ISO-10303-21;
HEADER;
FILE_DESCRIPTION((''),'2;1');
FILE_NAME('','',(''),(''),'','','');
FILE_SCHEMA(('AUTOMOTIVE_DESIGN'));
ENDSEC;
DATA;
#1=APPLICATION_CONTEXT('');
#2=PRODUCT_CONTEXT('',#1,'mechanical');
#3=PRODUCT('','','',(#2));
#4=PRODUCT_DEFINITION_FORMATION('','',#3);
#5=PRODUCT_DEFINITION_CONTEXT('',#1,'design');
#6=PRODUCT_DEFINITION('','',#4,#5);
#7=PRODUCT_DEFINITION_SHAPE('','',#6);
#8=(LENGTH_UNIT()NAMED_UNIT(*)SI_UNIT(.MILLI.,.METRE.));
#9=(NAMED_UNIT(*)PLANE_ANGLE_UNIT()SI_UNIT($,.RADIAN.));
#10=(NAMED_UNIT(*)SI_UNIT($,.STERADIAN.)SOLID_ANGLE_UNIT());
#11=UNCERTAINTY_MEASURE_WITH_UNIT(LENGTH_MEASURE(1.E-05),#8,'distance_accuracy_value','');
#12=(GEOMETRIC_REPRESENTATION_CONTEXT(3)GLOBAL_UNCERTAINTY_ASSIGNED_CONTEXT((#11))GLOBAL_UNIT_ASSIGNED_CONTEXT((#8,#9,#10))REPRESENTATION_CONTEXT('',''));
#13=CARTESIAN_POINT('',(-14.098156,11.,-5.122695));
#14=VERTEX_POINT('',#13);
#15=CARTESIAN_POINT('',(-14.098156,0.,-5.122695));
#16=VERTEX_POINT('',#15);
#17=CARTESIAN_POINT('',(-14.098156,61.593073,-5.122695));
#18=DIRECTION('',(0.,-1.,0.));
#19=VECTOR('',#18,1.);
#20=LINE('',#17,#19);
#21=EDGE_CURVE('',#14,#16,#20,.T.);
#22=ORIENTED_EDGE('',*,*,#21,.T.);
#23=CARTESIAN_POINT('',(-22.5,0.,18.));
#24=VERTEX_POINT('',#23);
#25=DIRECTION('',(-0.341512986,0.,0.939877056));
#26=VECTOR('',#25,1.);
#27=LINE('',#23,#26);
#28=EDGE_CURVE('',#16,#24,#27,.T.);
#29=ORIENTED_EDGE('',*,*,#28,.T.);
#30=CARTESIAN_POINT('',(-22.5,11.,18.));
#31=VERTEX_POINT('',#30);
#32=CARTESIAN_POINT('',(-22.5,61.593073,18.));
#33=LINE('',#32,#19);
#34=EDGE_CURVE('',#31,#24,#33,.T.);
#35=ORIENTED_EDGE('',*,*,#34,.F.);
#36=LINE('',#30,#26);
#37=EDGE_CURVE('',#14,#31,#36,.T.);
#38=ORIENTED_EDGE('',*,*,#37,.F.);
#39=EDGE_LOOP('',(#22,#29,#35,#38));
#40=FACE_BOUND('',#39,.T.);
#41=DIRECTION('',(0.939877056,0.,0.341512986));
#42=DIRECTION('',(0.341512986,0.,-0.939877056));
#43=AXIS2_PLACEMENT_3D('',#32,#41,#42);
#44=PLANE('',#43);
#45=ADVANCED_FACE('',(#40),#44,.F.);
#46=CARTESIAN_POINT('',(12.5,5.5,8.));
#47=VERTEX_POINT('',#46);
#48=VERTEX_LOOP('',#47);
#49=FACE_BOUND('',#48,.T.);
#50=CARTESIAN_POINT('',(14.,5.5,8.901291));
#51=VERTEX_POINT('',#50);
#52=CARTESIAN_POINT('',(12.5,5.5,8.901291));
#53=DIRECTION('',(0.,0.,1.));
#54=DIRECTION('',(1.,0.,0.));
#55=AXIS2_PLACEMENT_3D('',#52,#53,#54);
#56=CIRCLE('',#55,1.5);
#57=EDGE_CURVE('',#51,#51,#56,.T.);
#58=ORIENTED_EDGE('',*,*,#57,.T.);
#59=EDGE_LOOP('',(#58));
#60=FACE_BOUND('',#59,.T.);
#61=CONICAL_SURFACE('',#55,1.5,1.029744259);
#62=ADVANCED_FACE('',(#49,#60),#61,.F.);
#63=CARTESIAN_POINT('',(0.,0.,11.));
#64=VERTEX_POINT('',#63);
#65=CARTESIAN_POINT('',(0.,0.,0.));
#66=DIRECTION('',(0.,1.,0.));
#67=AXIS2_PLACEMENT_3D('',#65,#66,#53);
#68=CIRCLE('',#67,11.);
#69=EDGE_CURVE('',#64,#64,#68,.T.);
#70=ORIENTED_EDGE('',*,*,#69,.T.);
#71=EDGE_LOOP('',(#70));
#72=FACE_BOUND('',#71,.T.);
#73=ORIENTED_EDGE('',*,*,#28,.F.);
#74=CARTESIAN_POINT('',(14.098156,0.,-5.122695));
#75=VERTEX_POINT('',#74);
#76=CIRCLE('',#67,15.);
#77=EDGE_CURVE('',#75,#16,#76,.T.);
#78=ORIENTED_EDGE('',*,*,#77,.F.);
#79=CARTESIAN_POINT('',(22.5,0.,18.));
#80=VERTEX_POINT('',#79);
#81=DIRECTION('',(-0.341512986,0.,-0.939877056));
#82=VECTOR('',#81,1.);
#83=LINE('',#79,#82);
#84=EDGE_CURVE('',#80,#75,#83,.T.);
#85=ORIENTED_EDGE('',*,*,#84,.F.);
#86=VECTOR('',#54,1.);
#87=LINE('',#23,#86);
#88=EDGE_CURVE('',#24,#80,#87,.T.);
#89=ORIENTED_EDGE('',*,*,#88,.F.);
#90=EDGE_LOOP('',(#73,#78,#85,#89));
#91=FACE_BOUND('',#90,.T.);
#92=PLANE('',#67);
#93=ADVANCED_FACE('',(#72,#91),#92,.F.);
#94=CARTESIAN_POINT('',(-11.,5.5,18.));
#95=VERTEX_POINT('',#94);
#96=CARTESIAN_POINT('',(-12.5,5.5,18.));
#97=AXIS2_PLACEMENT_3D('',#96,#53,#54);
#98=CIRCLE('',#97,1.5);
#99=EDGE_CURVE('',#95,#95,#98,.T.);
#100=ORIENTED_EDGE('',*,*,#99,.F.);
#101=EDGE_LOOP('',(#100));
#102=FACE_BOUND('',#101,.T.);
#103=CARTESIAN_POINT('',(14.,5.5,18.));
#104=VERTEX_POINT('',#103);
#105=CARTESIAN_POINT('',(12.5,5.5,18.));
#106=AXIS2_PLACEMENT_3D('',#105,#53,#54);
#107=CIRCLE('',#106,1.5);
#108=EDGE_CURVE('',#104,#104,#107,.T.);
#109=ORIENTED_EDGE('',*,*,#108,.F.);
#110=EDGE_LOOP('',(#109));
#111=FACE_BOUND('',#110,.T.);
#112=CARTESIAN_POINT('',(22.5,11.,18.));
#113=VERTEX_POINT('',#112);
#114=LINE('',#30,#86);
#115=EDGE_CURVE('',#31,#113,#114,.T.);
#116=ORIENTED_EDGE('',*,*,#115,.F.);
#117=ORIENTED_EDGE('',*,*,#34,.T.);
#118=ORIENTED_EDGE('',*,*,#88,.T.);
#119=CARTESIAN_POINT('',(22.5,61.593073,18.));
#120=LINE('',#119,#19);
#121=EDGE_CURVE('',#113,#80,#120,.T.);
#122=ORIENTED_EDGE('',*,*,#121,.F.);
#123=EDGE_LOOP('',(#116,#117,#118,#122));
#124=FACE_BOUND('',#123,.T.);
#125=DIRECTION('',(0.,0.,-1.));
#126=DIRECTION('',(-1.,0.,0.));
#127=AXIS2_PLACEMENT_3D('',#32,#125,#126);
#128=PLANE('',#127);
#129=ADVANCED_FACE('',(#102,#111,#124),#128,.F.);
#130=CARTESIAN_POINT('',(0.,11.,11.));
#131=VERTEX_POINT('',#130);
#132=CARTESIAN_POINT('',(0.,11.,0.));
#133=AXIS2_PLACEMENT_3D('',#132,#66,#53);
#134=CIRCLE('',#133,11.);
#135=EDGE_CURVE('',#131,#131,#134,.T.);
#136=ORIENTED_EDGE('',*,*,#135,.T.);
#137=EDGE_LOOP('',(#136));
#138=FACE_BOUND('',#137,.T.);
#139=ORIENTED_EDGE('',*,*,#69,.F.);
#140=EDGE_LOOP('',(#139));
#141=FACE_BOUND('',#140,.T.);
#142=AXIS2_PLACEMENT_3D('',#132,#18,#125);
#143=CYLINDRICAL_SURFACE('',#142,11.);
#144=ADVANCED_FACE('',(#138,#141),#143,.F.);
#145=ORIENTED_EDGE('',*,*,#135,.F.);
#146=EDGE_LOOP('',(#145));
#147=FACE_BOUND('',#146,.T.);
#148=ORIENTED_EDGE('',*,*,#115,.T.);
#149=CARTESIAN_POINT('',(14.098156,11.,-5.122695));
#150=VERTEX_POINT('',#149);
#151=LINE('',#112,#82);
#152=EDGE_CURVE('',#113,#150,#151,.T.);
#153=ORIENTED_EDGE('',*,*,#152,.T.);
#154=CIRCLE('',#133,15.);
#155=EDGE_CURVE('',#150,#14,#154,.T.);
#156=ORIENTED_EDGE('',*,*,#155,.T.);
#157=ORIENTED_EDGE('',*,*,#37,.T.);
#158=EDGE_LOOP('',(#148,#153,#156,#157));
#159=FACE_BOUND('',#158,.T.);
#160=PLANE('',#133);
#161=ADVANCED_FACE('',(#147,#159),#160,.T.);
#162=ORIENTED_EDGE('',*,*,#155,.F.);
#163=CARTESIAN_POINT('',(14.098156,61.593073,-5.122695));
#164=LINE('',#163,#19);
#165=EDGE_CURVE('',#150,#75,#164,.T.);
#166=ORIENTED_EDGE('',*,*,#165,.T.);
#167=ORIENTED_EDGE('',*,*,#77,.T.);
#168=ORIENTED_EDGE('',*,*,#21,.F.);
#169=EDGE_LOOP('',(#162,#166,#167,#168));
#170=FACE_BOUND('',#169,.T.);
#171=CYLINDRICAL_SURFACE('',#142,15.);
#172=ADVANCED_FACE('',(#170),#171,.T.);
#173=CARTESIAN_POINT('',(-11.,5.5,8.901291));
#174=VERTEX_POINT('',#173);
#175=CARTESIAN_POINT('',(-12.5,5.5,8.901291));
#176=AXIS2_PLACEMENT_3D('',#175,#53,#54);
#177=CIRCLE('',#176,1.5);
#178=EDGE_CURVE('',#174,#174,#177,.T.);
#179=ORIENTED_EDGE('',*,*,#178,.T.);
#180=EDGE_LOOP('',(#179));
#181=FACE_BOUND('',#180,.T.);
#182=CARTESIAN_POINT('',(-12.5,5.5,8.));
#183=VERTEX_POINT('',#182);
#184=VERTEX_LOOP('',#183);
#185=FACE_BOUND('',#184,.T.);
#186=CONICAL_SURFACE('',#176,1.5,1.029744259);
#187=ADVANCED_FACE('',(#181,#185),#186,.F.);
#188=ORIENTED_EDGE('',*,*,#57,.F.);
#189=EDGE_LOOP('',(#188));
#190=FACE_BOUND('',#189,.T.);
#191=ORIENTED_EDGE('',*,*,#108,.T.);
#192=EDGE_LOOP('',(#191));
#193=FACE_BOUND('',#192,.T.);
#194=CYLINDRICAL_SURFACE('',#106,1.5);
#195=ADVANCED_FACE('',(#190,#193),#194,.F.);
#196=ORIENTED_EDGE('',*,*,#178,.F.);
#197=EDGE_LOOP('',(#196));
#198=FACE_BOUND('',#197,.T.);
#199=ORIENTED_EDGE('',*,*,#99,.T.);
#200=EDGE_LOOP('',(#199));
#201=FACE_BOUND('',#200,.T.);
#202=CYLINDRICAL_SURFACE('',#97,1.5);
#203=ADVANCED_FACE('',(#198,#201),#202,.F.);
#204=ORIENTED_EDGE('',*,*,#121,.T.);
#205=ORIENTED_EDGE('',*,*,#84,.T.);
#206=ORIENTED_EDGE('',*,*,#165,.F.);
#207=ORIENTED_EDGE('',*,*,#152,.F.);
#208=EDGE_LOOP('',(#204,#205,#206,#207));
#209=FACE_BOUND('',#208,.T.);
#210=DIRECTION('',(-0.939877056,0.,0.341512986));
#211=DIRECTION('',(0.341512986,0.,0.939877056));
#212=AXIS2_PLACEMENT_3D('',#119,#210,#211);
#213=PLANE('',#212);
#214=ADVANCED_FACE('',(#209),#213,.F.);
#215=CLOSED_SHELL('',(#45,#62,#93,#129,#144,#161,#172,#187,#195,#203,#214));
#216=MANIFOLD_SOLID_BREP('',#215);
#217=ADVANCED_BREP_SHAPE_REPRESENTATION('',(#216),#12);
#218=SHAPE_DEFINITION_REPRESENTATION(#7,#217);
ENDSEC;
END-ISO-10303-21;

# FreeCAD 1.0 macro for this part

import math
import FreeCAD as App
import Part
import Sketcher

V = App.Vector
Q = App.Units.Quantity

doc = App.newDocument("Part")
body = doc.addObject("PartDesign::Body", "Body")

sketch1 = body.newObject("Sketcher::SketchObject", "Sketch")
sketch1.AttachmentSupport = (doc.getObject("XZ_Plane"), [""])
sketch1.MapMode = "FlatFace"
sketch1.addGeometry([
    Part.Circle(V(0, 0, 0), V(0, 0, 1), 15),
    Part.Circle(V(0, 0, 0), V(0, 0, 1), 11),
], False)
sketch1.addConstraint([
    Sketcher.Constraint("Coincident", 0, 3, -1, 1),
    Sketcher.Constraint("Coincident", 1, 3, -1, 1),
    Sketcher.Constraint("Diameter", 0, Q("30 mm")),
    Sketcher.Constraint("Diameter", 1, Q("22 mm")),
])
pad1 = body.newObject("PartDesign::Pad", "Pad")
pad1.Profile = sketch1
pad1.Length = 11
pad1.Reversed = True

sketch2 = body.newObject("Sketcher::SketchObject", "Sketch001")
sketch2.AttachmentSupport = (doc.getObject("XZ_Plane"), [""])
sketch2.MapMode = "FlatFace"
sketch2.addGeometry([
    Part.LineSegment(V(-14, -5, 0), V(-22, 18, 0)),
    Part.LineSegment(V(-22, 18, 0), V(22, 18, 0)),
    Part.LineSegment(V(22, 18, 0), V(14, -5, 0)),
    Part.ArcOfCircle(Part.Circle(V(0, 0, 0), V(0, 0, 1), 15), math.radians(-20), math.radians(200)),
], False)
sketch2.addConstraint([
    Sketcher.Constraint("Coincident", 0, 2, 1, 1),
    Sketcher.Constraint("Coincident", 1, 2, 2, 1),
    Sketcher.Constraint("Tangent", 2, 2, 3, 1),
    Sketcher.Constraint("Tangent", 3, 2, 0, 1),
    Sketcher.Constraint("Horizontal", 1),
    Sketcher.Constraint("Coincident", 3, 3, -1, 1),
    Sketcher.Constraint("Horizontal", 2, 2, 3, 2),
    Sketcher.Constraint("Radius", 3, Q("15 mm")),
    Sketcher.Constraint("DistanceX", 1, 1, 1, 2, Q("45 mm")),
    Sketcher.Constraint("DistanceY", -1, 1, 0, 2, Q("18 mm")),
])
pad2 = body.newObject("PartDesign::Pad", "Pad001")
pad2.Profile = sketch2
pad2.Length = 11
pad2.Reversed = True

sketch3 = body.newObject("Sketcher::SketchObject", "Sketch002")
sketch3.AttachmentSupport = (doc.getObject("XY_Plane"), [""])
sketch3.MapMode = "FlatFace"
sketch3.AttachmentOffset = App.Placement(V(0, 0, 18), App.Rotation())
sketch3.addGeometry([
    Part.Circle(V(-12.5, 5.5, 0), V(0, 0, 1), 1.5),
    Part.Circle(V(12.5, 5.5, 0), V(0, 0, 1), 1.5),
], False)
sketch3.addConstraint([
    Sketcher.Constraint("Equal", 0, 1),
    Sketcher.Constraint("Symmetric", 0, 3, 1, 3, -2),
    Sketcher.Constraint("Diameter", 0, Q("3 mm")),
    Sketcher.Constraint("DistanceX", 0, 3, 1, 3, Q("25 mm")),
    Sketcher.Constraint("DistanceY", -1, 1, 0, 3, Q("5.5 mm")),
])
doc.recompute()
hole = body.newObject("PartDesign::Hole", "Hole")
hole.Profile = sketch3
hole.ThreadType = "None"
hole.Diameter = 3
hole.DepthType = "Dimension"
hole.Depth = 9.098709
hole.DrillPoint = "Angled"
hole.DrillPointAngle = 118

doc.recompute()
